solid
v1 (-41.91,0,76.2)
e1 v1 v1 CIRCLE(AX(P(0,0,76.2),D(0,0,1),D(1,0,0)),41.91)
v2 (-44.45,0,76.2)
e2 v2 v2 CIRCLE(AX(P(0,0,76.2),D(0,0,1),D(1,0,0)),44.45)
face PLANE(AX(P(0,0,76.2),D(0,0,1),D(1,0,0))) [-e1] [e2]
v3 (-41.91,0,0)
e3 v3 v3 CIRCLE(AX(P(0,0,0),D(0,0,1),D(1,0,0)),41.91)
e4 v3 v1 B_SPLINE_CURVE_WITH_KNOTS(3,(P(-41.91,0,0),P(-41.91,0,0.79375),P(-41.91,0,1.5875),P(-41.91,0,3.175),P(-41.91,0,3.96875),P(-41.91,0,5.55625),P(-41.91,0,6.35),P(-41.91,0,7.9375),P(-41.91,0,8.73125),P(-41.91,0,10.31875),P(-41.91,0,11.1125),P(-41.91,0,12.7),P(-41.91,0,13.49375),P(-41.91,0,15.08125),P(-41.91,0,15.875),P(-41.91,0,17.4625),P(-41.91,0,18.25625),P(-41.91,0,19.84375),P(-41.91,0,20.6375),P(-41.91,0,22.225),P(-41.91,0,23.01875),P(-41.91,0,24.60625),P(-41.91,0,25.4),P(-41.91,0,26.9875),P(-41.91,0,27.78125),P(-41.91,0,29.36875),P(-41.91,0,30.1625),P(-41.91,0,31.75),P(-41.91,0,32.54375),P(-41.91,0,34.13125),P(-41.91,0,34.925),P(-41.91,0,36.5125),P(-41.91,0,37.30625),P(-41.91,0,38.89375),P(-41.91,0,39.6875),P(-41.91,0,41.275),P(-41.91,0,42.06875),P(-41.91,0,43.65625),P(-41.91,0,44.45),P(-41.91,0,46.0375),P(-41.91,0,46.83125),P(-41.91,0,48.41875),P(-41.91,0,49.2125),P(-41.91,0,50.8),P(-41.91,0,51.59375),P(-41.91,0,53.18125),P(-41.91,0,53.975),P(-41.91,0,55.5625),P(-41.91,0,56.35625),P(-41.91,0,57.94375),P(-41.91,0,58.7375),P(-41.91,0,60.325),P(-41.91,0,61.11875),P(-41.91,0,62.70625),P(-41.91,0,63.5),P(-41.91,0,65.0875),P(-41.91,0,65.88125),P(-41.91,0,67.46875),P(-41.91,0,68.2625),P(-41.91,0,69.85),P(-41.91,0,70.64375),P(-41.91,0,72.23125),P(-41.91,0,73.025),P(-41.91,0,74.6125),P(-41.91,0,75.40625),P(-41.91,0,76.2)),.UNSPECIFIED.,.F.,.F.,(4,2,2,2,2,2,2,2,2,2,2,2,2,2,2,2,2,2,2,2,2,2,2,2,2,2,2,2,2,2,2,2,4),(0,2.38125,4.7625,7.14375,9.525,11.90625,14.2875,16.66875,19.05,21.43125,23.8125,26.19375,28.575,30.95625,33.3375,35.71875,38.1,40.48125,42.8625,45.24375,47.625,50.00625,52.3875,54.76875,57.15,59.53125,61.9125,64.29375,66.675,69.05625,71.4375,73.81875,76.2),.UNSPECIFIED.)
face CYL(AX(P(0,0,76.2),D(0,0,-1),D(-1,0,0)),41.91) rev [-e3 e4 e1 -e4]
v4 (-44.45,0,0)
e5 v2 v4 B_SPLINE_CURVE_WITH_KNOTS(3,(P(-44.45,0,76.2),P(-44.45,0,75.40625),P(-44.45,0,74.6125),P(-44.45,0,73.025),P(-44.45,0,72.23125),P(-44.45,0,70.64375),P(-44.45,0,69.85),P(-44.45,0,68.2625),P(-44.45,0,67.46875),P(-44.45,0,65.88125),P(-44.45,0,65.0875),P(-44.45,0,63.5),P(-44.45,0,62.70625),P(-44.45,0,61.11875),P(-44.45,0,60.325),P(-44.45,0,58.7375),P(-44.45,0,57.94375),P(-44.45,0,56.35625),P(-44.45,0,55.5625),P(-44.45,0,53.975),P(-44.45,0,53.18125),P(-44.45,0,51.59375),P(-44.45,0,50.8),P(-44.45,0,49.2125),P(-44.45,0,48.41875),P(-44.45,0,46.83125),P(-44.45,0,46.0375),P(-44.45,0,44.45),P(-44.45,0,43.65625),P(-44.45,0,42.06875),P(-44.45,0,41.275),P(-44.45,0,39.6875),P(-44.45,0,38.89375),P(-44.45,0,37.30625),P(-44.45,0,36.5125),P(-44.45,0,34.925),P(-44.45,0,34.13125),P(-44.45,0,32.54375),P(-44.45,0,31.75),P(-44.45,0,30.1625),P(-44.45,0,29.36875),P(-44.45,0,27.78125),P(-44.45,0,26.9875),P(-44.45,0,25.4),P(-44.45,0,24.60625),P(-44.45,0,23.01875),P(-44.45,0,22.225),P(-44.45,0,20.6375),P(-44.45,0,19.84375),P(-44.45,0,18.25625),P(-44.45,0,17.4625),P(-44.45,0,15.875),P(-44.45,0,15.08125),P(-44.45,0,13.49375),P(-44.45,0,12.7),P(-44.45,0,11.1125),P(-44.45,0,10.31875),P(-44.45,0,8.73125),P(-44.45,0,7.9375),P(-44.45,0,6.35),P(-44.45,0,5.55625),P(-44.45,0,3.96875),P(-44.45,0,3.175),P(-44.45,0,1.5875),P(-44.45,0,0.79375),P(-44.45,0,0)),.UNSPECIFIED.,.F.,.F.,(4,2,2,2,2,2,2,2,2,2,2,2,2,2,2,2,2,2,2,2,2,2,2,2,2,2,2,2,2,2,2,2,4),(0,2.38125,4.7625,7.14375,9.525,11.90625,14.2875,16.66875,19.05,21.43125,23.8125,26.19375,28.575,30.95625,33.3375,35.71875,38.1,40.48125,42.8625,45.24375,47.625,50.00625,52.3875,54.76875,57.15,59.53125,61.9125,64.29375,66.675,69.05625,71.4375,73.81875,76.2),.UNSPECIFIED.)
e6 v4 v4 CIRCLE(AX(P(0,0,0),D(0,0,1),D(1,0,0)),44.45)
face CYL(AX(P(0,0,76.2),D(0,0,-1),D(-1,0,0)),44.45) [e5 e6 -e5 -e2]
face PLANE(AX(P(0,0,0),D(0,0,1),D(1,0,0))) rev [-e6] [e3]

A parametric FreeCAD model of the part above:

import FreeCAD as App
import Part
import Sketcher

V = App.Vector
Q = App.Units.Quantity


def faces_at(feature, points):
    """Names of the faces that lie closest to the given points."""
    faces = feature.Shape.Faces
    near = lambda p: min(range(len(faces)), key=lambda i: faces[i].distToShape(Part.Vertex(*p))[0])
    return sorted({f"Face{near(p) + 1}" for p in points})

doc = App.newDocument("Part")
params = doc.addObject("Spreadsheet::Sheet", "Params")
for row, (alias, value) in enumerate([
    ("sketch1_diameter", "3.5 in"),
    ("pad1_length", "3 in"),
    ("thickness_wall", "0.1 in"),
    ("sketch2_diameter", "3.3 in"),
    ("pocket1_length", "3 in"),
], start=1):
    params.set(f"A{row}", alias)
    params.set(f"B{row}", "=" + value)
    params.setAlias(f"B{row}", alias)

body = doc.addObject("PartDesign::Body", "Body")

# Sketch on XY plane
sketch1 = doc.addObject("Sketcher::SketchObject", "Sketch")
body.addObject(sketch1)
sketch1.AttachmentSupport = (doc.XY_Plane, [""])
sketch1.MapMode = "FlatFace"
sketch1.addGeometry(Part.Circle(V(0, 0, 0), V(0, 0, 1), 44.45), False)
sketch1.addConstraint([
    Sketcher.Constraint("Coincident", 0, 3, -1, 1),
    Sketcher.Constraint("Diameter", 0, Q("3.5 in")),
])
sketch1.setExpression("Constraints[1]", "Params.sketch1_diameter")
pad1 = doc.addObject("PartDesign::Pad", "Pad")
body.addObject(pad1)
pad1.Profile = sketch1
pad1.setExpression("Length", "Params.pad1_length")
doc.recompute()

thickness = doc.addObject("PartDesign::Thickness", "Thickness")
body.addObject(thickness)
thickness.Base = (pad1, faces_at(pad1, [(0, 0, 0)]))
thickness.setExpression("Value", "Params.thickness_wall")
thickness.Reversed = True
thickness.Join = "Intersection"

# Sketch on XY plane
sketch2 = doc.addObject("Sketcher::SketchObject", "Sketch001")
body.addObject(sketch2)
sketch2.AttachmentSupport = (doc.XY_Plane, [""])
sketch2.MapMode = "FlatFace"
sketch2.AttachmentOffset = App.Placement(V(0, 0, 2.9 * 25.4), App.Rotation())
sketch2.addGeometry(Part.Circle(V(0, 0, 0), V(0, 0, 1), 41.91), False)
sketch2.addConstraint([
    Sketcher.Constraint("Coincident", 0, 3, -1, 1),
    Sketcher.Constraint("Diameter", 0, Q("3.3 in")),
])
sketch2.setExpression("Constraints[1]", "Params.sketch2_diameter")
pocket1 = doc.addObject("PartDesign::Pocket", "Pocket")
body.addObject(pocket1)
pocket1.Profile = sketch2
pocket1.setExpression("Length", "Params.pocket1_length")
pocket1.Reversed = True

doc.recompute()
